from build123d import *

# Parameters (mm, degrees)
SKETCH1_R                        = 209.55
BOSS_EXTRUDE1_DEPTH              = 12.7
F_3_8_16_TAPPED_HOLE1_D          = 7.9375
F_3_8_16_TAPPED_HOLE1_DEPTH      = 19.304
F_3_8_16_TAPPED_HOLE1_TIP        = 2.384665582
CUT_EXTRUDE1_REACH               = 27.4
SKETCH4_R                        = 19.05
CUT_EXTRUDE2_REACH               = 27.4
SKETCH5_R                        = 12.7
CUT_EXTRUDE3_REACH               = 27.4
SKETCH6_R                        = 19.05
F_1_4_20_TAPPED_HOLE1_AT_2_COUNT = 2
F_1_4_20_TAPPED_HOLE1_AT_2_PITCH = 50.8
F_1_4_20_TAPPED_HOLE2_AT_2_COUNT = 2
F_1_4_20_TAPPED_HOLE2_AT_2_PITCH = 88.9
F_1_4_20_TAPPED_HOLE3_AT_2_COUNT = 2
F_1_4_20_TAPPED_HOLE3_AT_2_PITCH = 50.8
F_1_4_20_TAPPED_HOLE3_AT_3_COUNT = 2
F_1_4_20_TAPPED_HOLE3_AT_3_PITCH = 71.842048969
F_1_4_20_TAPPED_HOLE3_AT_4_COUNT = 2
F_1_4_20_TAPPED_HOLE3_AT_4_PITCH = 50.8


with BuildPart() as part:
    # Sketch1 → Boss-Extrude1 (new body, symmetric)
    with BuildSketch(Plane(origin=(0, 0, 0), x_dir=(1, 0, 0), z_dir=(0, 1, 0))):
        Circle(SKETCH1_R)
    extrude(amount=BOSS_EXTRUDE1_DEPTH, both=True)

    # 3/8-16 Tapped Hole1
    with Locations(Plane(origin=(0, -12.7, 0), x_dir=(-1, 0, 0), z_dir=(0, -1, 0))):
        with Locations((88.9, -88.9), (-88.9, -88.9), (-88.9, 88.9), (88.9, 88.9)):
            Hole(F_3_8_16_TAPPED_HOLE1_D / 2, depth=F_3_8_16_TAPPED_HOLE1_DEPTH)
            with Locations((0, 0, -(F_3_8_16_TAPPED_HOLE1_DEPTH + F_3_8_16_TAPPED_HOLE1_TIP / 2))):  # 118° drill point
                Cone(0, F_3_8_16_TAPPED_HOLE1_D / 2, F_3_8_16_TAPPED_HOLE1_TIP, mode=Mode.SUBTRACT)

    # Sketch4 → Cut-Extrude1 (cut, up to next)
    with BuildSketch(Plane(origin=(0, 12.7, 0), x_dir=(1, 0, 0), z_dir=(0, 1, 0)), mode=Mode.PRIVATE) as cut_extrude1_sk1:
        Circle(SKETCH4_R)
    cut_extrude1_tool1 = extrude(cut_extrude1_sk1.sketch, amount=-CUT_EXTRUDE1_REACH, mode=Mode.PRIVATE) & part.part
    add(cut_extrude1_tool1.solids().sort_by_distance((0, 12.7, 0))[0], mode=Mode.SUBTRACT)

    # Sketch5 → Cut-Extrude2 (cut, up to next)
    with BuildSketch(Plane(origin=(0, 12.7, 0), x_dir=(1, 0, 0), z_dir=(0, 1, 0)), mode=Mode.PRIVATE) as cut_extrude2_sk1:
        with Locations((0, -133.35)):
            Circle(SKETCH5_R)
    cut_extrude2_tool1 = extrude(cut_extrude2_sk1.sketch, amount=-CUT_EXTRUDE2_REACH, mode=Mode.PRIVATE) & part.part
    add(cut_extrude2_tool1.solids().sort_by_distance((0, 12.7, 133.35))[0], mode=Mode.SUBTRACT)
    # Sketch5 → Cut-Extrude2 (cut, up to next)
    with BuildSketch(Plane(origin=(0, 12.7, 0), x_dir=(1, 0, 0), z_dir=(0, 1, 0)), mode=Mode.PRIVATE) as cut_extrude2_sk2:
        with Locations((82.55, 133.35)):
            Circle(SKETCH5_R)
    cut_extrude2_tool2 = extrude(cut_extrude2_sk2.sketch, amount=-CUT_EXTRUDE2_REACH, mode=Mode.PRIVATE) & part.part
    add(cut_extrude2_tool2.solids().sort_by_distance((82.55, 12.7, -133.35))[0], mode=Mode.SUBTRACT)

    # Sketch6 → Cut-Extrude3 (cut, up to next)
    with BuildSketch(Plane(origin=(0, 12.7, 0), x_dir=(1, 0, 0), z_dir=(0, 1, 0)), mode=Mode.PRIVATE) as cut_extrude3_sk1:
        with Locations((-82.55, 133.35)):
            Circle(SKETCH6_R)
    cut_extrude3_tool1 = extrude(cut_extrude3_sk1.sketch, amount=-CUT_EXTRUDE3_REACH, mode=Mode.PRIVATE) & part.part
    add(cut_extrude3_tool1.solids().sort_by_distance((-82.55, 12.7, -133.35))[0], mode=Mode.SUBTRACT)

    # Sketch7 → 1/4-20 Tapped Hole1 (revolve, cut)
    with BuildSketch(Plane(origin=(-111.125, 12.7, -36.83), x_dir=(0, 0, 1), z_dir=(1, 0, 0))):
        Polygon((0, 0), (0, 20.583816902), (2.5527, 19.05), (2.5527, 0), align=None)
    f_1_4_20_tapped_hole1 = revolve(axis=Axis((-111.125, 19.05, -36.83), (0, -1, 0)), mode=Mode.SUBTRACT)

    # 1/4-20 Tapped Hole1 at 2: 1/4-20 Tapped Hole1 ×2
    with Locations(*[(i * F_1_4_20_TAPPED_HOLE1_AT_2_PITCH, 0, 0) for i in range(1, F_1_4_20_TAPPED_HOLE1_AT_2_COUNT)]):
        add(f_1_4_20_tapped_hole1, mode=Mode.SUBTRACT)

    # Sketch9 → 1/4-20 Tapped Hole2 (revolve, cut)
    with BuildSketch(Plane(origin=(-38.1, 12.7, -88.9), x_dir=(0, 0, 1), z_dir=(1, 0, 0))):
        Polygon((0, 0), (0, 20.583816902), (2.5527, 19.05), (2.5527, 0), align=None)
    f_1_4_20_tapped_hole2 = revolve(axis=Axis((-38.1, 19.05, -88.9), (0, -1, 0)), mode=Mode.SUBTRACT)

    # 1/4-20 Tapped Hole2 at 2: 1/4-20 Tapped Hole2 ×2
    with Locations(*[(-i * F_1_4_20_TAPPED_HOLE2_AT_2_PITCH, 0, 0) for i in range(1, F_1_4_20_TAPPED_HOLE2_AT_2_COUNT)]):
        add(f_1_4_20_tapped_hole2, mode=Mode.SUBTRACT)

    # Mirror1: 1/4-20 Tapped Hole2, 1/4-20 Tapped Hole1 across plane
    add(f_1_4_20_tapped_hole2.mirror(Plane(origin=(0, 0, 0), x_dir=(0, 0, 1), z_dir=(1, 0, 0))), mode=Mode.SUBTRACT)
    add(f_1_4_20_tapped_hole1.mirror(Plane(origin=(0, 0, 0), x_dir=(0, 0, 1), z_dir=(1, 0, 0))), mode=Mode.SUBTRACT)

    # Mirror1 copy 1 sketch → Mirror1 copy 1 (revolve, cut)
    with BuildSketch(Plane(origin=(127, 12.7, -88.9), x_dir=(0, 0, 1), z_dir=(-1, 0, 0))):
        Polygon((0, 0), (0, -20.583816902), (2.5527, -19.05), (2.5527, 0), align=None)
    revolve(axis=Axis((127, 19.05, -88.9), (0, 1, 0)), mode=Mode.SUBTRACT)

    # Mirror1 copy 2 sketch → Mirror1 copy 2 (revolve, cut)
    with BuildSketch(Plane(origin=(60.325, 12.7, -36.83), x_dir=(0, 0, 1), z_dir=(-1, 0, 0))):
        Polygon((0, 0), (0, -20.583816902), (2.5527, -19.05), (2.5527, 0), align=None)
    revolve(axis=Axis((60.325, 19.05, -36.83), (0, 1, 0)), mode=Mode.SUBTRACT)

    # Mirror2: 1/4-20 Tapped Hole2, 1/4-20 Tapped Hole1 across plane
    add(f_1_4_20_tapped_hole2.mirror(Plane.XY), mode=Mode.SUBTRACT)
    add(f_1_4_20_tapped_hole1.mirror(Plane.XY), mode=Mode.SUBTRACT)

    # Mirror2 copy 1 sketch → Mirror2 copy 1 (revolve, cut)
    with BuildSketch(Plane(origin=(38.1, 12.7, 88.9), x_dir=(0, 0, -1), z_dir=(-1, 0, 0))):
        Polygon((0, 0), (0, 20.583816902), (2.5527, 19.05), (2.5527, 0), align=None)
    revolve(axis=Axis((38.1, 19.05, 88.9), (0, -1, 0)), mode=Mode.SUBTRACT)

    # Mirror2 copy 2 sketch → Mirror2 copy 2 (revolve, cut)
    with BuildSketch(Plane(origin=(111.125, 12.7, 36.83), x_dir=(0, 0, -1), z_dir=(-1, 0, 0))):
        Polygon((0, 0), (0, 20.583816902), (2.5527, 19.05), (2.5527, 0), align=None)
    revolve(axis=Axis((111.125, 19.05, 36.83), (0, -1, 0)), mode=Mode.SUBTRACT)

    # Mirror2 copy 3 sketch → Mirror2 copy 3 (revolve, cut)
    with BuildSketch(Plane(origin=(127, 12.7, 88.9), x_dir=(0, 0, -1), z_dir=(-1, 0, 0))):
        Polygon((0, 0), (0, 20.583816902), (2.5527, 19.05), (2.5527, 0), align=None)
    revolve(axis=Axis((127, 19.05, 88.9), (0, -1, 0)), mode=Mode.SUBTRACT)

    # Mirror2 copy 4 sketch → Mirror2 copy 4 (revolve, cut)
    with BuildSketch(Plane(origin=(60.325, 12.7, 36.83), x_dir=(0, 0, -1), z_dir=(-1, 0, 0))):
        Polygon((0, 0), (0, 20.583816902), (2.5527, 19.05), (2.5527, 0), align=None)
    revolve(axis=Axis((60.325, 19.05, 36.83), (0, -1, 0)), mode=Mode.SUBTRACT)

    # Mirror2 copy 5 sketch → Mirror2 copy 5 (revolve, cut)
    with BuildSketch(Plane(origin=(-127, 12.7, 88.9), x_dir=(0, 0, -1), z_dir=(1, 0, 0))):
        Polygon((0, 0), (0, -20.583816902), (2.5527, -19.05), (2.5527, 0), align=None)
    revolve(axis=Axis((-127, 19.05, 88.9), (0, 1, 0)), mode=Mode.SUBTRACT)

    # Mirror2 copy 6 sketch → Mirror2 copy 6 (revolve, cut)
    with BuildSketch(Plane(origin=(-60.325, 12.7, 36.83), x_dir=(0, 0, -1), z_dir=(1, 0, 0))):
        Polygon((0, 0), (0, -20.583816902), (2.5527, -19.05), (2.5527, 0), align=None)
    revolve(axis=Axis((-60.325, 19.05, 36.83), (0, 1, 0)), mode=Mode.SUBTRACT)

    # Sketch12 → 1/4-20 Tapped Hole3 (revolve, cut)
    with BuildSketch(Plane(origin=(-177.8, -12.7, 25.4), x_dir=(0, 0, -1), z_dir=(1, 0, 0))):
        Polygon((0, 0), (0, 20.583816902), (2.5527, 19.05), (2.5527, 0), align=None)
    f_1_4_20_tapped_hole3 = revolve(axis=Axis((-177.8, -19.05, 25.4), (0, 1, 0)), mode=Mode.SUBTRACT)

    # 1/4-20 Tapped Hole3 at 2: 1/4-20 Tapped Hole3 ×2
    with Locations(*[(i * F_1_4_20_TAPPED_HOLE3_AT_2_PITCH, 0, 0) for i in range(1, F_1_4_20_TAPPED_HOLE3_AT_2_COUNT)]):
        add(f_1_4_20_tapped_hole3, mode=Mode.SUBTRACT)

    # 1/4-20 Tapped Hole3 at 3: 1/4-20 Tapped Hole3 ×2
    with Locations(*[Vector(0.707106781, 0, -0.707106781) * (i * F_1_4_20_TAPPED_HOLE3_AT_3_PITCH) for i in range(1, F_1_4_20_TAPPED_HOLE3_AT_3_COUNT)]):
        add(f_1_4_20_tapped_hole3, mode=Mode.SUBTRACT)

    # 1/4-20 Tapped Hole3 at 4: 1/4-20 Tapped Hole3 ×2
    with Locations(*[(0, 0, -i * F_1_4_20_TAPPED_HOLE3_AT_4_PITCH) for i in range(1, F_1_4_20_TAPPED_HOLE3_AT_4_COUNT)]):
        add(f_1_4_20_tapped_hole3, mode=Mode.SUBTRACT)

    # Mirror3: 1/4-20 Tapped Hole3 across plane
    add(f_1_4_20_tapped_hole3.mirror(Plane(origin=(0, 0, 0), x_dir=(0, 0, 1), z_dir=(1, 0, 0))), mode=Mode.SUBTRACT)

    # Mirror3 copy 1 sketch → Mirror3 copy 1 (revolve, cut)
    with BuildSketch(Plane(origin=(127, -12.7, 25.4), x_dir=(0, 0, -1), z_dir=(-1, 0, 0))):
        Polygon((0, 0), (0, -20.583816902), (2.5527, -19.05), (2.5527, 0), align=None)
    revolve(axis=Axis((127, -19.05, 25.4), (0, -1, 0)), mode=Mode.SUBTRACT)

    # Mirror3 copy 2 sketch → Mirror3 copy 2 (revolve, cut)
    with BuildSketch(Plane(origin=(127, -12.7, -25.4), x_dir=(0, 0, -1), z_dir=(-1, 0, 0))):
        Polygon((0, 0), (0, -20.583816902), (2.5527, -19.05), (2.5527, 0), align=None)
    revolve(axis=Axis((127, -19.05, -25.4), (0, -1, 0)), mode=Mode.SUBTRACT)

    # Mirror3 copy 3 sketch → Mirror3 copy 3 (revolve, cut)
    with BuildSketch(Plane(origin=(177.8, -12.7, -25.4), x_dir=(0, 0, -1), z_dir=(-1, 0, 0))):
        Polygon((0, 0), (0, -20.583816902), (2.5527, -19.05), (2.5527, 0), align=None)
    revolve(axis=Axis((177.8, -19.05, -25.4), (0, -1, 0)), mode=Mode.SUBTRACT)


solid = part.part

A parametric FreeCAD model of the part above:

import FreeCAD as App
import Part
import Sketcher

V = App.Vector
Q = App.Units.Quantity

doc = App.newDocument("Part")
params = doc.addObject("Spreadsheet::Sheet", "Params")
for row, (alias, value) in enumerate([
    ("sketch1_diameter", "16.5 in"),
    ("pad1_length", "1 in"),
    ("sketch2_diameter", "0.3125 in"),
    ("hole_diameter", "0.3125 in"),
    ("hole_depth", "0.76 in"),
    ("sketch3_diameter", "1.5 in"),
    ("sketch4_diameter", "1 in"),
    ("sketch5_diameter", "1 in"),
    ("sketch6_diameter", "1.5 in"),
    ("sketch7_width", "0.75 in"),
    ("groove_angle", "360 deg"),
    ("linearpattern_pitch", "2 in"),
    ("sketch8_width", "0.75 in"),
    ("groove2_angle", "360 deg"),
    ("linearpattern2_pitch", "3.5 in"),
    ("sketch9_width", "0.75 in"),
    ("groove3_angle", "360 deg"),
    ("sketch10_width", "0.75 in"),
    ("groove4_angle", "360 deg"),
    ("sketch11_width", "0.75 in"),
    ("groove5_angle", "360 deg"),
    ("sketch12_width", "0.75 in"),
    ("groove6_angle", "360 deg"),
    ("sketch13_width", "0.75 in"),
    ("groove7_angle", "360 deg"),
    ("sketch14_width", "0.75 in"),
    ("groove8_angle", "360 deg"),
    ("sketch15_width", "0.75 in"),
    ("groove9_angle", "360 deg"),
    ("sketch16_width", "0.75 in"),
    ("groove10_angle", "360 deg"),
    ("sketch17_width", "0.75 in"),
    ("groove11_angle", "360 deg"),
    ("linearpattern3_pitch", "2 in"),
    ("linearpattern4_pitch", "71.842049 mm"),
    ("linearpattern5_pitch", "2 in"),
    ("sketch18_width", "0.75 in"),
    ("groove12_angle", "360 deg"),
    ("sketch19_width", "0.75 in"),
    ("groove13_angle", "360 deg"),
    ("sketch20_width", "0.75 in"),
    ("groove14_angle", "360 deg"),
], start=1):
    params.set(f"A{row}", alias)
    params.set(f"B{row}", "=" + value)
    params.setAlias(f"B{row}", alias)

body = doc.addObject("PartDesign::Body", "Body")

# Sketch on XZ plane
sketch1 = body.newObject("Sketcher::SketchObject", "Sketch")
sketch1.AttachmentSupport = (doc.getObject("XZ_Plane"), [""])
sketch1.MapMode = "FlatFace"
sketch1.addGeometry(Part.Circle(V(0, 0, 0), V(0, 0, 1), 210), False)
sketch1.addConstraint([
    Sketcher.Constraint("Coincident", 0, 3, -1, 1),
    Sketcher.Constraint("Diameter", 0, Q("16.5 in")),
])
sketch1.setExpression("Constraints[1]", "Params.sketch1_diameter")
pad1 = body.newObject("PartDesign::Pad", "Pad")
pad1.Profile = sketch1
pad1.setExpression("Length", "Params.pad1_length")
pad1.Midplane = True

# Sketch on XZ plane
sketch2 = body.newObject("Sketcher::SketchObject", "Sketch001")
sketch2.AttachmentSupport = (doc.getObject("XZ_Plane"), [""])
sketch2.MapMode = "FlatFace"
sketch2.AttachmentOffset = App.Placement(V(0, 0, 0.5 * 25.4), App.Rotation())
sketch2.addGeometry([
    Part.Circle(V(-88.9, 88.9, 0), V(0, 0, 1), 4),
    Part.Circle(V(88.9, 88.9, 0), V(0, 0, 1), 4),
    Part.Circle(V(88.9, -88.9, 0), V(0, 0, 1), 4),
    Part.Circle(V(-88.9, -88.9, 0), V(0, 0, 1), 4),
], False)
sketch2.addConstraint([
    Sketcher.Constraint("Equal", 0, 1),
    Sketcher.Constraint("Equal", 1, 2),
    Sketcher.Constraint("Equal", 2, 3),
    Sketcher.Constraint("Symmetric", 0, 3, 2, 3, -1, 1),
    Sketcher.Constraint("Symmetric", 1, 3, 3, 3, -1, 1),
    Sketcher.Constraint("Symmetric", 0, 3, 1, 3, -2),
    Sketcher.Constraint("Diameter", 0, Q("0.3125 in")),
    Sketcher.Constraint("DistanceX", 0, 3, 1, 3, Q("7 in")),
    Sketcher.Constraint("DistanceY", 2, 3, 1, 3, Q("7 in")),
])
sketch2.setExpression("Constraints[6]", "Params.sketch2_diameter")
doc.recompute()
hole = body.newObject("PartDesign::Hole", "Hole")
hole.Profile = sketch2
hole.ThreadType = "None"
hole.setExpression("Diameter", "Params.hole_diameter")
hole.DepthType = "Dimension"
hole.setExpression("Depth", "Params.hole_depth")
hole.DrillPoint = "Angled"
hole.DrillPointAngle = 118

# Sketch on XZ plane
sketch3 = body.newObject("Sketcher::SketchObject", "Sketch002")
sketch3.AttachmentSupport = (doc.getObject("XZ_Plane"), [""])
sketch3.MapMode = "FlatFace"
sketch3.AttachmentOffset = App.Placement(V(0, 0, -0.5 * 25.4), App.Rotation())
sketch3.addGeometry(Part.Circle(V(0, 0, 0), V(0, 0, 1), 19), False)
sketch3.addConstraint([
    Sketcher.Constraint("Coincident", 0, 3, -1, 1),
    Sketcher.Constraint("Diameter", 0, Q("1.5 in")),
])
sketch3.setExpression("Constraints[1]", "Params.sketch3_diameter")
pocket1 = body.newObject("PartDesign::Pocket", "Pocket")
pocket1.Profile = sketch3
pocket1.Type = "UpToFirst"
pocket1.Reversed = True

# Sketch on XZ plane
sketch4 = body.newObject("Sketcher::SketchObject", "Sketch003")
sketch4.AttachmentSupport = (doc.getObject("XZ_Plane"), [""])
sketch4.MapMode = "FlatFace"
sketch4.AttachmentOffset = App.Placement(V(0, 0, -0.5 * 25.4), App.Rotation())
sketch4.addGeometry(Part.Circle(V(0, 133, 0), V(0, 0, 1), 13), False)
sketch4.addConstraint([
    Sketcher.Constraint("PointOnObject", 0, 3, -2),
    Sketcher.Constraint("Diameter", 0, Q("1 in")),
    Sketcher.Constraint("DistanceY", -1, 1, 0, 3, Q("5.25 in")),
])
sketch4.setExpression("Constraints[1]", "Params.sketch4_diameter")
pocket2 = body.newObject("PartDesign::Pocket", "Pocket001")
pocket2.Profile = sketch4
pocket2.Type = "UpToFirst"
pocket2.Reversed = True

# Sketch on XZ plane
sketch5 = body.newObject("Sketcher::SketchObject", "Sketch004")
sketch5.AttachmentSupport = (doc.getObject("XZ_Plane"), [""])
sketch5.MapMode = "FlatFace"
sketch5.AttachmentOffset = App.Placement(V(0, 0, -0.5 * 25.4), App.Rotation())
sketch5.addGeometry(Part.Circle(V(83, -133, 0), V(0, 0, 1), 13), False)
sketch5.addConstraint([
    Sketcher.Constraint("Diameter", 0, Q("1 in")),
    Sketcher.Constraint("DistanceX", -1, 1, 0, 3, Q("3.25 in")),
    Sketcher.Constraint("DistanceY", 0, 3, -1, 1, Q("5.25 in")),
])
sketch5.setExpression("Constraints[0]", "Params.sketch5_diameter")
pocket3 = body.newObject("PartDesign::Pocket", "Pocket002")
pocket3.Profile = sketch5
pocket3.Type = "UpToFirst"
pocket3.Reversed = True

# Sketch on XZ plane
sketch6 = body.newObject("Sketcher::SketchObject", "Sketch005")
sketch6.AttachmentSupport = (doc.getObject("XZ_Plane"), [""])
sketch6.MapMode = "FlatFace"
sketch6.AttachmentOffset = App.Placement(V(0, 0, -0.5 * 25.4), App.Rotation())
sketch6.addGeometry(Part.Circle(V(-83, -133, 0), V(0, 0, 1), 19), False)
sketch6.addConstraint([
    Sketcher.Constraint("Diameter", 0, Q("1.5 in")),
    Sketcher.Constraint("DistanceX", 0, 3, -1, 1, Q("3.25 in")),
    Sketcher.Constraint("DistanceY", 0, 3, -1, 1, Q("5.25 in")),
])
sketch6.setExpression("Constraints[0]", "Params.sketch6_diameter")
pocket4 = body.newObject("PartDesign::Pocket", "Pocket003")
pocket4.Profile = sketch6
pocket4.Type = "UpToFirst"
pocket4.Reversed = True

# Sketch on YZ plane
sketch7 = body.newObject("Sketcher::SketchObject", "Sketch006")
sketch7.AttachmentSupport = (doc.getObject("YZ_Plane"), [""])
sketch7.MapMode = "FlatFace"
sketch7.AttachmentOffset = App.Placement(V(0, 0, -4.375 * 25.4), App.Rotation())
sketch7.addGeometry([
    Part.LineSegment(V(-7.9, -36.8, 0), V(12.7, -36.8, 0)),
    Part.LineSegment(V(12.7, -36.8, 0), V(12.7, -34.3, 0)),
    Part.LineSegment(V(12.7, -34.3, 0), V(-6.3, -34.3, 0)),
    Part.LineSegment(V(-6.3, -34.3, 0), V(-7.9, -36.8, 0)),
], False)
sketch7.addGeometry(Part.LineSegment(V(12.7, -36.8, 0), V(-7.9, -36.8, 0)), True)  # axis
sketch7.addConstraint([
    Sketcher.Constraint("Coincident", 0, 2, 1, 1),
    Sketcher.Constraint("Coincident", 1, 2, 2, 1),
    Sketcher.Constraint("Coincident", 2, 2, 3, 1),
    Sketcher.Constraint("Coincident", 3, 2, 0, 1),
    Sketcher.Constraint("Horizontal", 0),
    Sketcher.Constraint("Vertical", 1),
    Sketcher.Constraint("Horizontal", 2),
    Sketcher.Constraint("Horizontal", 4),
    Sketcher.Constraint("Coincident", 4, 1, 0, 2),
    Sketcher.Constraint("Equal", 0, 4),
    Sketcher.Constraint("Angle", 3, Q("-121 deg")),
    Sketcher.Constraint("DistanceX", 2, 2, 2, 1, Q("0.75 in")),
    Sketcher.Constraint("DistanceX", -1, 1, 0, 2, Q("0.5 in")),
    Sketcher.Constraint("DistanceY", 0, 2, -1, 1, Q("1.45 in")),
    Sketcher.Constraint("DistanceY", 1, 1, 1, 2, Q("0.1005 in")),
])
sketch7.setExpression("Constraints[11]", "Params.sketch7_width")
groove = body.newObject("PartDesign::Groove", "Groove")
groove.Profile = sketch7
groove.ReferenceAxis = (sketch7, ["Axis0"])
groove.setExpression("Angle", "Params.groove_angle")
doc.recompute()

linearpattern = body.newObject("PartDesign::LinearPattern", "LinearPattern")
linearpattern.Originals = [groove]
linearpattern.Direction = (doc.getObject("X_Axis"), [""])
linearpattern.Mode = "offset"
linearpattern.setExpression("Offset", "Params.linearpattern_pitch")
linearpattern.Occurrences = 2
body.Tip = linearpattern

# Sketch on YZ plane
sketch8 = body.newObject("Sketcher::SketchObject", "Sketch007")
sketch8.AttachmentSupport = (doc.getObject("YZ_Plane"), [""])
sketch8.MapMode = "FlatFace"
sketch8.AttachmentOffset = App.Placement(V(0, 0, -1.5 * 25.4), App.Rotation())
sketch8.addGeometry([
    Part.LineSegment(V(-7.9, -88.9, 0), V(12.7, -88.9, 0)),
    Part.LineSegment(V(12.7, -88.9, 0), V(12.7, -86.3, 0)),
    Part.LineSegment(V(12.7, -86.3, 0), V(-6.3, -86.3, 0)),
    Part.LineSegment(V(-6.3, -86.3, 0), V(-7.9, -88.9, 0)),
], False)
sketch8.addGeometry(Part.LineSegment(V(12.7, -88.9, 0), V(-7.9, -88.9, 0)), True)  # axis
sketch8.addConstraint([
    Sketcher.Constraint("Coincident", 0, 2, 1, 1),
    Sketcher.Constraint("Coincident", 1, 2, 2, 1),
    Sketcher.Constraint("Coincident", 2, 2, 3, 1),
    Sketcher.Constraint("Coincident", 3, 2, 0, 1),
    Sketcher.Constraint("Horizontal", 0),
    Sketcher.Constraint("Vertical", 1),
    Sketcher.Constraint("Horizontal", 2),
    Sketcher.Constraint("Horizontal", 4),
    Sketcher.Constraint("Coincident", 4, 1, 0, 2),
    Sketcher.Constraint("Equal", 0, 4),
    Sketcher.Constraint("Angle", 3, Q("-121 deg")),
    Sketcher.Constraint("DistanceX", 2, 2, 2, 1, Q("0.75 in")),
    Sketcher.Constraint("DistanceX", -1, 1, 0, 2, Q("0.5 in")),
    Sketcher.Constraint("DistanceY", 0, 2, -1, 1, Q("3.5 in")),
    Sketcher.Constraint("DistanceY", 1, 1, 1, 2, Q("0.1005 in")),
])
sketch8.setExpression("Constraints[11]", "Params.sketch8_width")
groove2 = body.newObject("PartDesign::Groove", "Groove001")
groove2.Profile = sketch8
groove2.ReferenceAxis = (sketch8, ["Axis0"])
groove2.setExpression("Angle", "Params.groove2_angle")
doc.recompute()

linearpattern2 = body.newObject("PartDesign::LinearPattern", "LinearPattern001")
linearpattern2.Originals = [groove2]
linearpattern2.Direction = (doc.getObject("X_Axis"), [""])
linearpattern2.Mode = "offset"
linearpattern2.setExpression("Offset", "Params.linearpattern2_pitch")
linearpattern2.Occurrences = 2
linearpattern2.Reversed = True
body.Tip = linearpattern2
doc.recompute()

mirrored = body.newObject("PartDesign::Mirrored", "Mirrored")
mirrored.Originals = [groove2, groove]
mirrored.MirrorPlane = (doc.getObject("YZ_Plane"), [""])
body.Tip = mirrored

# Sketch on YZ plane
sketch9 = body.newObject("Sketcher::SketchObject", "Sketch008")
sketch9.AttachmentSupport = (doc.getObject("YZ_Plane"), [""])
sketch9.MapMode = "FlatFace"
sketch9.AttachmentOffset = App.Placement(V(0, 0, 5 * 25.4), App.Rotation())
sketch9.addGeometry([
    Part.LineSegment(V(12.7, -88.9, 0), V(-7.9, -88.9, 0)),
    Part.LineSegment(V(-7.9, -88.9, 0), V(-6.3, -86.3, 0)),
    Part.LineSegment(V(-6.3, -86.3, 0), V(12.7, -86.3, 0)),
    Part.LineSegment(V(12.7, -86.3, 0), V(12.7, -88.9, 0)),
], False)
sketch9.addGeometry(Part.LineSegment(V(-7.9, -88.9, 0), V(12.7, -88.9, 0)), True)  # axis
sketch9.addConstraint([
    Sketcher.Constraint("Coincident", 0, 2, 1, 1),
    Sketcher.Constraint("Coincident", 1, 2, 2, 1),
    Sketcher.Constraint("Coincident", 2, 2, 3, 1),
    Sketcher.Constraint("Coincident", 3, 2, 0, 1),
    Sketcher.Constraint("Horizontal", 0),
    Sketcher.Constraint("Horizontal", 2),
    Sketcher.Constraint("Vertical", 3),
    Sketcher.Constraint("Horizontal", 4),
    Sketcher.Constraint("Coincident", 4, 1, 0, 2),
    Sketcher.Constraint("Vertical", 2, 2, 4, 2),
    Sketcher.Constraint("Angle", 1, Q("59 deg")),
    Sketcher.Constraint("DistanceX", 2, 1, 2, 2, Q("0.75 in")),
    Sketcher.Constraint("DistanceY", 0, 2, -1, 1, Q("3.5 in")),
    Sketcher.Constraint("DistanceX", -1, 1, 2, 2, Q("0.5 in")),
    Sketcher.Constraint("DistanceY", 3, 2, 3, 1, Q("0.1005 in")),
])
sketch9.setExpression("Constraints[11]", "Params.sketch9_width")
groove3 = body.newObject("PartDesign::Groove", "Groove002")
groove3.Profile = sketch9
groove3.ReferenceAxis = (sketch9, ["Axis0"])
groove3.setExpression("Angle", "Params.groove3_angle")

# Sketch on YZ plane
sketch10 = body.newObject("Sketcher::SketchObject", "Sketch009")
sketch10.AttachmentSupport = (doc.getObject("YZ_Plane"), [""])
sketch10.MapMode = "FlatFace"
sketch10.AttachmentOffset = App.Placement(V(0, 0, 2.375 * 25.4), App.Rotation())
sketch10.addGeometry([
    Part.LineSegment(V(12.7, -36.8, 0), V(-7.9, -36.8, 0)),
    Part.LineSegment(V(-7.9, -36.8, 0), V(-6.3, -34.3, 0)),
    Part.LineSegment(V(-6.3, -34.3, 0), V(12.7, -34.3, 0)),
    Part.LineSegment(V(12.7, -34.3, 0), V(12.7, -36.8, 0)),
], False)
sketch10.addGeometry(Part.LineSegment(V(-7.9, -36.8, 0), V(12.7, -36.8, 0)), True)  # axis
sketch10.addConstraint([
    Sketcher.Constraint("Coincident", 0, 2, 1, 1),
    Sketcher.Constraint("Coincident", 1, 2, 2, 1),
    Sketcher.Constraint("Coincident", 2, 2, 3, 1),
    Sketcher.Constraint("Coincident", 3, 2, 0, 1),
    Sketcher.Constraint("Horizontal", 0),
    Sketcher.Constraint("Horizontal", 2),
    Sketcher.Constraint("Vertical", 3),
    Sketcher.Constraint("Horizontal", 4),
    Sketcher.Constraint("Coincident", 4, 1, 0, 2),
    Sketcher.Constraint("Vertical", 2, 2, 4, 2),
    Sketcher.Constraint("Angle", 1, Q("59 deg")),
    Sketcher.Constraint("DistanceX", 2, 1, 2, 2, Q("0.75 in")),
    Sketcher.Constraint("DistanceX", -1, 1, 2, 2, Q("0.5 in")),
    Sketcher.Constraint("DistanceY", 0, 2, -1, 1, Q("1.45 in")),
    Sketcher.Constraint("DistanceY", 3, 2, 3, 1, Q("0.1005 in")),
])
sketch10.setExpression("Constraints[11]", "Params.sketch10_width")
groove4 = body.newObject("PartDesign::Groove", "Groove003")
groove4.Profile = sketch10
groove4.ReferenceAxis = (sketch10, ["Axis0"])
groove4.setExpression("Angle", "Params.groove4_angle")
doc.recompute()

mirrored2 = body.newObject("PartDesign::Mirrored", "Mirrored001")
mirrored2.Originals = [groove2, groove]
mirrored2.MirrorPlane = (doc.getObject("XY_Plane"), [""])
body.Tip = mirrored2

# Sketch on YZ plane
sketch11 = body.newObject("Sketcher::SketchObject", "Sketch010")
sketch11.AttachmentSupport = (doc.getObject("YZ_Plane"), [""])
sketch11.MapMode = "FlatFace"
sketch11.AttachmentOffset = App.Placement(V(0, 0, 1.5 * 25.4), App.Rotation())
sketch11.addGeometry([
    Part.LineSegment(V(-7.9, 88.9, 0), V(12.7, 88.9, 0)),
    Part.LineSegment(V(12.7, 88.9, 0), V(12.7, 86.3, 0)),
    Part.LineSegment(V(12.7, 86.3, 0), V(-6.3, 86.3, 0)),
    Part.LineSegment(V(-6.3, 86.3, 0), V(-7.9, 88.9, 0)),
], False)
sketch11.addGeometry(Part.LineSegment(V(12.7, 88.9, 0), V(-7.9, 88.9, 0)), True)  # axis
sketch11.addConstraint([
    Sketcher.Constraint("Coincident", 0, 2, 1, 1),
    Sketcher.Constraint("Coincident", 1, 2, 2, 1),
    Sketcher.Constraint("Coincident", 2, 2, 3, 1),
    Sketcher.Constraint("Coincident", 3, 2, 0, 1),
    Sketcher.Constraint("Horizontal", 0),
    Sketcher.Constraint("Vertical", 1),
    Sketcher.Constraint("Horizontal", 2),
    Sketcher.Constraint("Horizontal", 4),
    Sketcher.Constraint("Coincident", 4, 1, 0, 2),
    Sketcher.Constraint("Equal", 0, 4),
    Sketcher.Constraint("Angle", 3, Q("121 deg")),
    Sketcher.Constraint("DistanceX", 2, 2, 2, 1, Q("0.75 in")),
    Sketcher.Constraint("DistanceX", -1, 1, 0, 2, Q("0.5 in")),
    Sketcher.Constraint("DistanceY", -1, 1, 0, 2, Q("3.5 in")),
    Sketcher.Constraint("DistanceY", 1, 2, 1, 1, Q("0.1005 in")),
])
sketch11.setExpression("Constraints[11]", "Params.sketch11_width")
groove5 = body.newObject("PartDesign::Groove", "Groove004")
groove5.Profile = sketch11
groove5.ReferenceAxis = (sketch11, ["Axis0"])
groove5.setExpression("Angle", "Params.groove5_angle")

# Sketch on YZ plane
sketch12 = body.newObject("Sketcher::SketchObject", "Sketch011")
sketch12.AttachmentSupport = (doc.getObject("YZ_Plane"), [""])
sketch12.MapMode = "FlatFace"
sketch12.AttachmentOffset = App.Placement(V(0, 0, 4.375 * 25.4), App.Rotation())
sketch12.addGeometry([
    Part.LineSegment(V(-7.9, 36.8, 0), V(12.7, 36.8, 0)),
    Part.LineSegment(V(12.7, 36.8, 0), V(12.7, 34.3, 0)),
    Part.LineSegment(V(12.7, 34.3, 0), V(-6.3, 34.3, 0)),
    Part.LineSegment(V(-6.3, 34.3, 0), V(-7.9, 36.8, 0)),
], False)
sketch12.addGeometry(Part.LineSegment(V(12.7, 36.8, 0), V(-7.9, 36.8, 0)), True)  # axis
sketch12.addConstraint([
    Sketcher.Constraint("Coincident", 0, 2, 1, 1),
    Sketcher.Constraint("Coincident", 1, 2, 2, 1),
    Sketcher.Constraint("Coincident", 2, 2, 3, 1),
    Sketcher.Constraint("Coincident", 3, 2, 0, 1),
    Sketcher.Constraint("Horizontal", 0),
    Sketcher.Constraint("Vertical", 1),
    Sketcher.Constraint("Horizontal", 2),
    Sketcher.Constraint("Horizontal", 4),
    Sketcher.Constraint("Coincident", 4, 1, 0, 2),
    Sketcher.Constraint("Equal", 0, 4),
    Sketcher.Constraint("Angle", 3, Q("121 deg")),
    Sketcher.Constraint("DistanceX", 2, 2, 2, 1, Q("0.75 in")),
    Sketcher.Constraint("DistanceX", -1, 1, 0, 2, Q("0.5 in")),
    Sketcher.Constraint("DistanceY", -1, 1, 0, 2, Q("1.45 in")),
    Sketcher.Constraint("DistanceY", 1, 2, 1, 1, Q("0.1005 in")),
])
sketch12.setExpression("Constraints[11]", "Params.sketch12_width")
groove6 = body.newObject("PartDesign::Groove", "Groove005")
groove6.Profile = sketch12
groove6.ReferenceAxis = (sketch12, ["Axis0"])
groove6.setExpression("Angle", "Params.groove6_angle")

# Sketch on YZ plane
sketch13 = body.newObject("Sketcher::SketchObject", "Sketch012")
sketch13.AttachmentSupport = (doc.getObject("YZ_Plane"), [""])
sketch13.MapMode = "FlatFace"
sketch13.AttachmentOffset = App.Placement(V(0, 0, 5 * 25.4), App.Rotation())
sketch13.addGeometry([
    Part.LineSegment(V(-7.9, 88.9, 0), V(12.7, 88.9, 0)),
    Part.LineSegment(V(12.7, 88.9, 0), V(12.7, 86.3, 0)),
    Part.LineSegment(V(12.7, 86.3, 0), V(-6.3, 86.3, 0)),
    Part.LineSegment(V(-6.3, 86.3, 0), V(-7.9, 88.9, 0)),
], False)
sketch13.addGeometry(Part.LineSegment(V(12.7, 88.9, 0), V(-7.9, 88.9, 0)), True)  # axis
sketch13.addConstraint([
    Sketcher.Constraint("Coincident", 0, 2, 1, 1),
    Sketcher.Constraint("Coincident", 1, 2, 2, 1),
    Sketcher.Constraint("Coincident", 2, 2, 3, 1),
    Sketcher.Constraint("Coincident", 3, 2, 0, 1),
    Sketcher.Constraint("Horizontal", 0),
    Sketcher.Constraint("Vertical", 1),
    Sketcher.Constraint("Horizontal", 2),
    Sketcher.Constraint("Horizontal", 4),
    Sketcher.Constraint("Coincident", 4, 1, 0, 2),
    Sketcher.Constraint("Equal", 0, 4),
    Sketcher.Constraint("Angle", 3, Q("121 deg")),
    Sketcher.Constraint("DistanceX", 2, 2, 2, 1, Q("0.75 in")),
    Sketcher.Constraint("DistanceX", -1, 1, 0, 2, Q("0.5 in")),
    Sketcher.Constraint("DistanceY", -1, 1, 0, 2, Q("3.5 in")),
    Sketcher.Constraint("DistanceY", 1, 2, 1, 1, Q("0.1005 in")),
])
sketch13.setExpression("Constraints[11]", "Params.sketch13_width")
groove7 = body.newObject("PartDesign::Groove", "Groove006")
groove7.Profile = sketch13
groove7.ReferenceAxis = (sketch13, ["Axis0"])
groove7.setExpression("Angle", "Params.groove7_angle")

# Sketch on YZ plane
sketch14 = body.newObject("Sketcher::SketchObject", "Sketch013")
sketch14.AttachmentSupport = (doc.getObject("YZ_Plane"), [""])
sketch14.MapMode = "FlatFace"
sketch14.AttachmentOffset = App.Placement(V(0, 0, 2.375 * 25.4), App.Rotation())
sketch14.addGeometry([
    Part.LineSegment(V(-7.9, 36.8, 0), V(12.7, 36.8, 0)),
    Part.LineSegment(V(12.7, 36.8, 0), V(12.7, 34.3, 0)),
    Part.LineSegment(V(12.7, 34.3, 0), V(-6.3, 34.3, 0)),
    Part.LineSegment(V(-6.3, 34.3, 0), V(-7.9, 36.8, 0)),
], False)
sketch14.addGeometry(Part.LineSegment(V(12.7, 36.8, 0), V(-7.9, 36.8, 0)), True)  # axis
sketch14.addConstraint([
    Sketcher.Constraint("Coincident", 0, 2, 1, 1),
    Sketcher.Constraint("Coincident", 1, 2, 2, 1),
    Sketcher.Constraint("Coincident", 2, 2, 3, 1),
    Sketcher.Constraint("Coincident", 3, 2, 0, 1),
    Sketcher.Constraint("Horizontal", 0),
    Sketcher.Constraint("Vertical", 1),
    Sketcher.Constraint("Horizontal", 2),
    Sketcher.Constraint("Horizontal", 4),
    Sketcher.Constraint("Coincident", 4, 1, 0, 2),
    Sketcher.Constraint("Equal", 0, 4),
    Sketcher.Constraint("Angle", 3, Q("121 deg")),
    Sketcher.Constraint("DistanceX", 2, 2, 2, 1, Q("0.75 in")),
    Sketcher.Constraint("DistanceX", -1, 1, 0, 2, Q("0.5 in")),
    Sketcher.Constraint("DistanceY", -1, 1, 0, 2, Q("1.45 in")),
    Sketcher.Constraint("DistanceY", 1, 2, 1, 1, Q("0.1005 in")),
])
sketch14.setExpression("Constraints[11]", "Params.sketch14_width")
groove8 = body.newObject("PartDesign::Groove", "Groove007")
groove8.Profile = sketch14
groove8.ReferenceAxis = (sketch14, ["Axis0"])
groove8.setExpression("Angle", "Params.groove8_angle")

# Sketch on YZ plane
sketch15 = body.newObject("Sketcher::SketchObject", "Sketch014")
sketch15.AttachmentSupport = (doc.getObject("YZ_Plane"), [""])
sketch15.MapMode = "FlatFace"
sketch15.AttachmentOffset = App.Placement(V(0, 0, -5 * 25.4), App.Rotation())
sketch15.addGeometry([
    Part.LineSegment(V(12.7, 88.9, 0), V(-7.9, 88.9, 0)),
    Part.LineSegment(V(-7.9, 88.9, 0), V(-6.3, 86.3, 0)),
    Part.LineSegment(V(-6.3, 86.3, 0), V(12.7, 86.3, 0)),
    Part.LineSegment(V(12.7, 86.3, 0), V(12.7, 88.9, 0)),
], False)
sketch15.addGeometry(Part.LineSegment(V(-7.9, 88.9, 0), V(12.7, 88.9, 0)), True)  # axis
sketch15.addConstraint([
    Sketcher.Constraint("Coincident", 0, 2, 1, 1),
    Sketcher.Constraint("Coincident", 1, 2, 2, 1),
    Sketcher.Constraint("Coincident", 2, 2, 3, 1),
    Sketcher.Constraint("Coincident", 3, 2, 0, 1),
    Sketcher.Constraint("Horizontal", 0),
    Sketcher.Constraint("Horizontal", 2),
    Sketcher.Constraint("Vertical", 3),
    Sketcher.Constraint("Horizontal", 4),
    Sketcher.Constraint("Coincident", 4, 1, 0, 2),
    Sketcher.Constraint("Vertical", 2, 2, 4, 2),
    Sketcher.Constraint("Angle", 1, Q("-59 deg")),
    Sketcher.Constraint("DistanceX", 2, 1, 2, 2, Q("0.75 in")),
    Sketcher.Constraint("DistanceY", -1, 1, 0, 2, Q("3.5 in")),
    Sketcher.Constraint("DistanceX", -1, 1, 2, 2, Q("0.5 in")),
    Sketcher.Constraint("DistanceY", 3, 1, 3, 2, Q("0.1005 in")),
])
sketch15.setExpression("Constraints[11]", "Params.sketch15_width")
groove9 = body.newObject("PartDesign::Groove", "Groove008")
groove9.Profile = sketch15
groove9.ReferenceAxis = (sketch15, ["Axis0"])
groove9.setExpression("Angle", "Params.groove9_angle")

# Sketch on YZ plane
sketch16 = body.newObject("Sketcher::SketchObject", "Sketch015")
sketch16.AttachmentSupport = (doc.getObject("YZ_Plane"), [""])
sketch16.MapMode = "FlatFace"
sketch16.AttachmentOffset = App.Placement(V(0, 0, -2.375 * 25.4), App.Rotation())
sketch16.addGeometry([
    Part.LineSegment(V(12.7, 36.8, 0), V(-7.9, 36.8, 0)),
    Part.LineSegment(V(-7.9, 36.8, 0), V(-6.3, 34.3, 0)),
    Part.LineSegment(V(-6.3, 34.3, 0), V(12.7, 34.3, 0)),
    Part.LineSegment(V(12.7, 34.3, 0), V(12.7, 36.8, 0)),
], False)
sketch16.addGeometry(Part.LineSegment(V(-7.9, 36.8, 0), V(12.7, 36.8, 0)), True)  # axis
sketch16.addConstraint([
    Sketcher.Constraint("Coincident", 0, 2, 1, 1),
    Sketcher.Constraint("Coincident", 1, 2, 2, 1),
    Sketcher.Constraint("Coincident", 2, 2, 3, 1),
    Sketcher.Constraint("Coincident", 3, 2, 0, 1),
    Sketcher.Constraint("Horizontal", 0),
    Sketcher.Constraint("Horizontal", 2),
    Sketcher.Constraint("Vertical", 3),
    Sketcher.Constraint("Horizontal", 4),
    Sketcher.Constraint("Coincident", 4, 1, 0, 2),
    Sketcher.Constraint("Vertical", 2, 2, 4, 2),
    Sketcher.Constraint("Angle", 1, Q("-59 deg")),
    Sketcher.Constraint("DistanceX", 2, 1, 2, 2, Q("0.75 in")),
    Sketcher.Constraint("DistanceX", -1, 1, 2, 2, Q("0.5 in")),
    Sketcher.Constraint("DistanceY", -1, 1, 0, 2, Q("1.45 in")),
    Sketcher.Constraint("DistanceY", 3, 1, 3, 2, Q("0.1005 in")),
])
sketch16.setExpression("Constraints[11]", "Params.sketch16_width")
groove10 = body.newObject("PartDesign::Groove", "Groove009")
groove10.Profile = sketch16
groove10.ReferenceAxis = (sketch16, ["Axis0"])
groove10.setExpression("Angle", "Params.groove10_angle")

# Sketch on YZ plane
sketch17 = body.newObject("Sketcher::SketchObject", "Sketch016")
sketch17.AttachmentSupport = (doc.getObject("YZ_Plane"), [""])
sketch17.MapMode = "FlatFace"
sketch17.AttachmentOffset = App.Placement(V(0, 0, -7 * 25.4), App.Rotation())
sketch17.addGeometry([
    Part.LineSegment(V(7.9, 25.4, 0), V(-12.7, 25.4, 0)),
    Part.LineSegment(V(-12.7, 25.4, 0), V(-12.7, 22.8, 0)),
    Part.LineSegment(V(-12.7, 22.8, 0), V(6.3, 22.8, 0)),
    Part.LineSegment(V(6.3, 22.8, 0), V(7.9, 25.4, 0)),
], False)
sketch17.addGeometry(Part.LineSegment(V(-12.7, 25.4, 0), V(7.9, 25.4, 0)), True)  # axis
sketch17.addConstraint([
    Sketcher.Constraint("Coincident", 0, 2, 1, 1),
    Sketcher.Constraint("Coincident", 1, 2, 2, 1),
    Sketcher.Constraint("Coincident", 2, 2, 3, 1),
    Sketcher.Constraint("Coincident", 3, 2, 0, 1),
    Sketcher.Constraint("Horizontal", 0),
    Sketcher.Constraint("Vertical", 1),
    Sketcher.Constraint("Horizontal", 2),
    Sketcher.Constraint("Horizontal", 4),
    Sketcher.Constraint("Coincident", 4, 1, 0, 2),
    Sketcher.Constraint("Equal", 0, 4),
    Sketcher.Constraint("DistanceY", -1, 1, 0, 2, Q("1 in")),
    Sketcher.Constraint("Angle", 3, Q("59 deg")),
    Sketcher.Constraint("DistanceX", 2, 1, 2, 2, Q("0.75 in")),
    Sketcher.Constraint("DistanceX", 0, 2, -1, 1, Q("0.5 in")),
    Sketcher.Constraint("DistanceY", 1, 2, 1, 1, Q("0.1005 in")),
])
sketch17.setExpression("Constraints[12]", "Params.sketch17_width")
groove11 = body.newObject("PartDesign::Groove", "Groove010")
groove11.Profile = sketch17
groove11.ReferenceAxis = (sketch17, ["Axis0"])
groove11.setExpression("Angle", "Params.groove11_angle")
doc.recompute()

linearpattern3 = body.newObject("PartDesign::LinearPattern", "LinearPattern002")
linearpattern3.Originals = [groove11]
linearpattern3.Direction = (doc.getObject("X_Axis"), [""])
linearpattern3.Mode = "offset"
linearpattern3.setExpression("Offset", "Params.linearpattern3_pitch")
linearpattern3.Occurrences = 2
body.Tip = linearpattern3
doc.recompute()

datumline = body.newObject("PartDesign::Line", "DatumLine")
datumline.Placement = App.Placement(V(0, 0, 0), App.Rotation(V(0, 0, 1), V(0.707106781, 0, -0.707106781)))
linearpattern4 = body.newObject("PartDesign::LinearPattern", "LinearPattern003")
linearpattern4.Originals = [groove11]
linearpattern4.Direction = (datumline, [""])
linearpattern4.Mode = "offset"
linearpattern4.setExpression("Offset", "Params.linearpattern4_pitch")
linearpattern4.Occurrences = 2
body.Tip = linearpattern4
doc.recompute()

linearpattern5 = body.newObject("PartDesign::LinearPattern", "LinearPattern004")
linearpattern5.Originals = [groove11]
linearpattern5.Direction = (doc.getObject("Z_Axis"), [""])
linearpattern5.Mode = "offset"
linearpattern5.setExpression("Offset", "Params.linearpattern5_pitch")
linearpattern5.Occurrences = 2
linearpattern5.Reversed = True
body.Tip = linearpattern5
doc.recompute()

mirrored3 = body.newObject("PartDesign::Mirrored", "Mirrored002")
mirrored3.Originals = [groove11]
mirrored3.MirrorPlane = (doc.getObject("YZ_Plane"), [""])
body.Tip = mirrored3

# Sketch on YZ plane
sketch18 = body.newObject("Sketcher::SketchObject", "Sketch017")
sketch18.AttachmentSupport = (doc.getObject("YZ_Plane"), [""])
sketch18.MapMode = "FlatFace"
sketch18.AttachmentOffset = App.Placement(V(0, 0, 5 * 25.4), App.Rotation())
sketch18.addGeometry([
    Part.LineSegment(V(-12.7, 25.4, 0), V(7.9, 25.4, 0)),
    Part.LineSegment(V(7.9, 25.4, 0), V(6.3, 22.8, 0)),
    Part.LineSegment(V(6.3, 22.8, 0), V(-12.7, 22.8, 0)),
    Part.LineSegment(V(-12.7, 22.8, 0), V(-12.7, 25.4, 0)),
], False)
sketch18.addGeometry(Part.LineSegment(V(7.9, 25.4, 0), V(-12.7, 25.4, 0)), True)  # axis
sketch18.addConstraint([
    Sketcher.Constraint("Coincident", 0, 2, 1, 1),
    Sketcher.Constraint("Coincident", 1, 2, 2, 1),
    Sketcher.Constraint("Coincident", 2, 2, 3, 1),
    Sketcher.Constraint("Coincident", 3, 2, 0, 1),
    Sketcher.Constraint("Horizontal", 0),
    Sketcher.Constraint("Horizontal", 2),
    Sketcher.Constraint("Vertical", 3),
    Sketcher.Constraint("Horizontal", 4),
    Sketcher.Constraint("Coincident", 4, 1, 0, 2),
    Sketcher.Constraint("Vertical", 2, 2, 4, 2),
    Sketcher.Constraint("DistanceY", -1, 1, 0, 2, Q("1 in")),
    Sketcher.Constraint("Angle", 1, Q("-121 deg")),
    Sketcher.Constraint("DistanceX", 2, 2, 2, 1, Q("0.75 in")),
    Sketcher.Constraint("DistanceX", 2, 2, -1, 1, Q("0.5 in")),
    Sketcher.Constraint("DistanceY", 3, 1, 3, 2, Q("0.1005 in")),
])
sketch18.setExpression("Constraints[12]", "Params.sketch18_width")
groove12 = body.newObject("PartDesign::Groove", "Groove011")
groove12.Profile = sketch18
groove12.ReferenceAxis = (sketch18, ["Axis0"])
groove12.setExpression("Angle", "Params.groove12_angle")

# Sketch on YZ plane
sketch19 = body.newObject("Sketcher::SketchObject", "Sketch018")
sketch19.AttachmentSupport = (doc.getObject("YZ_Plane"), [""])
sketch19.MapMode = "FlatFace"
sketch19.AttachmentOffset = App.Placement(V(0, 0, 5 * 25.4), App.Rotation())
sketch19.addGeometry([
    Part.LineSegment(V(-12.7, -25.4, 0), V(7.9, -25.4, 0)),
    Part.LineSegment(V(7.9, -25.4, 0), V(6.3, -28, 0)),
    Part.LineSegment(V(6.3, -28, 0), V(-12.7, -28, 0)),
    Part.LineSegment(V(-12.7, -28, 0), V(-12.7, -25.4, 0)),
], False)
sketch19.addGeometry(Part.LineSegment(V(7.9, -25.4, 0), V(-12.7, -25.4, 0)), True)  # axis
sketch19.addConstraint([
    Sketcher.Constraint("Coincident", 0, 2, 1, 1),
    Sketcher.Constraint("Coincident", 1, 2, 2, 1),
    Sketcher.Constraint("Coincident", 2, 2, 3, 1),
    Sketcher.Constraint("Coincident", 3, 2, 0, 1),
    Sketcher.Constraint("Horizontal", 0),
    Sketcher.Constraint("Horizontal", 2),
    Sketcher.Constraint("Vertical", 3),
    Sketcher.Constraint("Horizontal", 4),
    Sketcher.Constraint("Coincident", 4, 1, 0, 2),
    Sketcher.Constraint("Vertical", 2, 2, 4, 2),
    Sketcher.Constraint("DistanceY", 0, 2, -1, 1, Q("1 in")),
    Sketcher.Constraint("Angle", 1, Q("-121 deg")),
    Sketcher.Constraint("DistanceX", 2, 2, 2, 1, Q("0.75 in")),
    Sketcher.Constraint("DistanceX", 2, 2, -1, 1, Q("0.5 in")),
    Sketcher.Constraint("DistanceY", 3, 1, 3, 2, Q("0.1005 in")),
])
sketch19.setExpression("Constraints[12]", "Params.sketch19_width")
groove13 = body.newObject("PartDesign::Groove", "Groove012")
groove13.Profile = sketch19
groove13.ReferenceAxis = (sketch19, ["Axis0"])
groove13.setExpression("Angle", "Params.groove13_angle")

# Sketch on YZ plane
sketch20 = body.newObject("Sketcher::SketchObject", "Sketch019")
sketch20.AttachmentSupport = (doc.getObject("YZ_Plane"), [""])
sketch20.MapMode = "FlatFace"
sketch20.AttachmentOffset = App.Placement(V(0, 0, 7 * 25.4), App.Rotation())
sketch20.addGeometry([
    Part.LineSegment(V(-12.7, -25.4, 0), V(7.9, -25.4, 0)),
    Part.LineSegment(V(7.9, -25.4, 0), V(6.3, -28, 0)),
    Part.LineSegment(V(6.3, -28, 0), V(-12.7, -28, 0)),
    Part.LineSegment(V(-12.7, -28, 0), V(-12.7, -25.4, 0)),
], False)
sketch20.addGeometry(Part.LineSegment(V(7.9, -25.4, 0), V(-12.7, -25.4, 0)), True)  # axis
sketch20.addConstraint([
    Sketcher.Constraint("Coincident", 0, 2, 1, 1),
    Sketcher.Constraint("Coincident", 1, 2, 2, 1),
    Sketcher.Constraint("Coincident", 2, 2, 3, 1),
    Sketcher.Constraint("Coincident", 3, 2, 0, 1),
    Sketcher.Constraint("Horizontal", 0),
    Sketcher.Constraint("Horizontal", 2),
    Sketcher.Constraint("Vertical", 3),
    Sketcher.Constraint("Horizontal", 4),
    Sketcher.Constraint("Coincident", 4, 1, 0, 2),
    Sketcher.Constraint("Vertical", 2, 2, 4, 2),
    Sketcher.Constraint("DistanceY", 0, 2, -1, 1, Q("1 in")),
    Sketcher.Constraint("Angle", 1, Q("-121 deg")),
    Sketcher.Constraint("DistanceX", 2, 2, 2, 1, Q("0.75 in")),
    Sketcher.Constraint("DistanceX", 2, 2, -1, 1, Q("0.5 in")),
    Sketcher.Constraint("DistanceY", 3, 1, 3, 2, Q("0.1005 in")),
])
sketch20.setExpression("Constraints[12]", "Params.sketch20_width")
groove14 = body.newObject("PartDesign::Groove", "Groove013")
groove14.Profile = sketch20
groove14.ReferenceAxis = (sketch20, ["Axis0"])
groove14.setExpression("Angle", "Params.groove14_angle")

doc.recompute()
